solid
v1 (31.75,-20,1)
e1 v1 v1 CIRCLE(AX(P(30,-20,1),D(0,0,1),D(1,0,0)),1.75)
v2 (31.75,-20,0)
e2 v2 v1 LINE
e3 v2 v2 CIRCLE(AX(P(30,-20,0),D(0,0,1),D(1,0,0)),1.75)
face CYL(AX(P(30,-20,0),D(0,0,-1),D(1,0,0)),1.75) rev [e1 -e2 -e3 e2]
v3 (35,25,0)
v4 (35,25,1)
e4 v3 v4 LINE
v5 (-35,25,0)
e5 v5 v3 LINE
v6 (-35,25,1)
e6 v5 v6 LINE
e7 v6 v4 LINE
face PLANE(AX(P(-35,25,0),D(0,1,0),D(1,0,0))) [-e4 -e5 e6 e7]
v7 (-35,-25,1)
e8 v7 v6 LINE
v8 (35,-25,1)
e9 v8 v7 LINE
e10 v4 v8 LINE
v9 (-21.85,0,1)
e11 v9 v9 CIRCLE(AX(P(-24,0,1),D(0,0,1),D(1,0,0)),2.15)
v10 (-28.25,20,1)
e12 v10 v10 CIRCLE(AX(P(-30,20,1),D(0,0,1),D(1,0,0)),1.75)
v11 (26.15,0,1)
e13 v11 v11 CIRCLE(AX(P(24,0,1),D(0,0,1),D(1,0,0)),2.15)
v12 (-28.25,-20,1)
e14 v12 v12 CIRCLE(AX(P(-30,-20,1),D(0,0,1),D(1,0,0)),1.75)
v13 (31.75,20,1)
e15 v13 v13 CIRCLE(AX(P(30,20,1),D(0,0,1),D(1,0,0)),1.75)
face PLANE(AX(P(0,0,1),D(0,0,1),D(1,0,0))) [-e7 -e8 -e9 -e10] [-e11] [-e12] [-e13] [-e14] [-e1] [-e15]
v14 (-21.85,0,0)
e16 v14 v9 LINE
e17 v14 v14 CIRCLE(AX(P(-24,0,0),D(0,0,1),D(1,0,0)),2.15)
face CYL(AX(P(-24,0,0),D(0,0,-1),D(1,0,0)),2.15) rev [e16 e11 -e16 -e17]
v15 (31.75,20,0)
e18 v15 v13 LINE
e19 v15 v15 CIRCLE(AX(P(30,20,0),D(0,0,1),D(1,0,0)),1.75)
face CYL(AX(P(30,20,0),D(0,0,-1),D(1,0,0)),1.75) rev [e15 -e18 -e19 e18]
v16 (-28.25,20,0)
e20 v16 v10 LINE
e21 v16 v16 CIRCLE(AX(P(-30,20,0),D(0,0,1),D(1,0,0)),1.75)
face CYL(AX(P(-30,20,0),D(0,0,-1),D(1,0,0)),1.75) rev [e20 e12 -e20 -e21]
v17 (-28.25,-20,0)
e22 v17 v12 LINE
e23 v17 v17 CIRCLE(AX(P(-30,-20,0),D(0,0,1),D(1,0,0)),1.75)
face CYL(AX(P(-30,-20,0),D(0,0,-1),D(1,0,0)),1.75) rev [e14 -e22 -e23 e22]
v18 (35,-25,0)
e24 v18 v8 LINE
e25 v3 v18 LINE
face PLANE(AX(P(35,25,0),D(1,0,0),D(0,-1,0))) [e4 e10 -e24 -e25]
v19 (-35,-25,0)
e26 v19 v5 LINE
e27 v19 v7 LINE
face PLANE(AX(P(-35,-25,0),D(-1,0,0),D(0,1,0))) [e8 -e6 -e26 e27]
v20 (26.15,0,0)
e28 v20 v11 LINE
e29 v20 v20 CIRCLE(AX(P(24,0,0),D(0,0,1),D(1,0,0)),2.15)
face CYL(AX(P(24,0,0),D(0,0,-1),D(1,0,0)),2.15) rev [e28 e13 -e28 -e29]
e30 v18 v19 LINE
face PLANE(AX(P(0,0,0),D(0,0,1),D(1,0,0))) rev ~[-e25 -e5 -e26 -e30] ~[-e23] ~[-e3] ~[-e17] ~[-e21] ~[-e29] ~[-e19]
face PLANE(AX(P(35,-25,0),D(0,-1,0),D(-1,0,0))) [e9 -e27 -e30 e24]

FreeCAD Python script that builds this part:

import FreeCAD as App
import Part
import Sketcher
from FreeCAD import Vector
Q = App.Units.Quantity


def add_polygon(sketch, points):
    """Adds a closed chain of lines whose ends are joined by coincident constraints."""
    first, n = sketch.GeometryCount, len(points)
    for a, b in zip(points, points[1:] + points[:1]):
        sketch.addGeometry(Part.LineSegment(App.Vector(*a, 0), App.Vector(*b, 0)), False)
    for i in range(n):
        sketch.addConstraint(Sketcher.Constraint("Coincident", first + i, 2, first + (i + 1) % n, 1))

doc = App.newDocument("Part")
body = doc.addObject("PartDesign::Body", "Body")

sketch1 = body.newObject("Sketcher::SketchObject", "Sketch")
sketch1.AttachmentSupport = (doc.getObject("XY_Plane"), [""])
sketch1.MapMode = "FlatFace"
add_polygon(sketch1, [(35, 25), (-35, 25), (-35, -25), (35, -25)])
sketch1.addGeometry(Part.Circle(Vector(-30, -20, 0), Vector(0, 0, 1), 1.8), False)
sketch1.addGeometry(Part.Circle(Vector(30, -20, 0), Vector(0, 0, 1), 1.8), False)
sketch1.addGeometry(Part.Circle(Vector(-24, 0, 0), Vector(0, 0, 1), 2.1), False)
sketch1.addGeometry(Part.Circle(Vector(-30, 20, 0), Vector(0, 0, 1), 1.8), False)
sketch1.addGeometry(Part.Circle(Vector(24, 0, 0), Vector(0, 0, 1), 2.1), False)
sketch1.addGeometry(Part.Circle(Vector(30, 20, 0), Vector(0, 0, 1), 1.8), False)
sketch1.addConstraint(Sketcher.Constraint("Horizontal", 0))
sketch1.addConstraint(Sketcher.Constraint("Vertical", 1))
sketch1.addConstraint(Sketcher.Constraint("Horizontal", 2))
sketch1.addConstraint(Sketcher.Constraint("Vertical", 3))
sketch1.addConstraint(Sketcher.Constraint("Equal", 4, 5))
sketch1.addConstraint(Sketcher.Constraint("Equal", 5, 7))
sketch1.addConstraint(Sketcher.Constraint("Equal", 6, 8))
sketch1.addConstraint(Sketcher.Constraint("Equal", 7, 9))
sketch1.addConstraint(Sketcher.Constraint("Symmetric", 5, 3, 7, 3, -1, 1))
sketch1.addConstraint(Sketcher.Constraint("Symmetric", 6, 3, 8, 3, -1, 1))
sketch1.addConstraint(Sketcher.Constraint("Symmetric", 4, 3, 9, 3, -1, 1))
sketch1.addConstraint(Sketcher.Constraint("Symmetric", 0, 2, 2, 2, -1, 1))
sketch1.addConstraint(Sketcher.Constraint("Symmetric", 4, 3, 5, 3, -2))
sketch1.addConstraint(Sketcher.Constraint("PointOnObject", 6, 3, -1))
sketch1.addConstraint(Sketcher.Constraint("Diameter", 4, Q("3.5 mm")))
sketch1.addConstraint(Sketcher.Constraint("Diameter", 6, Q("4.3 mm")))
sketch1.addConstraint(Sketcher.Constraint("DistanceX", 0, 2, 0, 1, Q("70 mm")))
sketch1.addConstraint(Sketcher.Constraint("DistanceY", 1, 2, 1, 1, Q("50 mm")))
sketch1.addConstraint(Sketcher.Constraint("DistanceX", 6, 3, -1, 1, Q("24 mm")))
sketch1.addConstraint(Sketcher.Constraint("DistanceX", 0, 2, 7, 3, Q("5 mm")))
sketch1.addConstraint(Sketcher.Constraint("DistanceY", 7, 3, 0, 2, Q("5 mm")))
pad1 = body.newObject("PartDesign::Pad", "Pad")
pad1.Profile = sketch1
pad1.Length = 1

doc.recompute()
